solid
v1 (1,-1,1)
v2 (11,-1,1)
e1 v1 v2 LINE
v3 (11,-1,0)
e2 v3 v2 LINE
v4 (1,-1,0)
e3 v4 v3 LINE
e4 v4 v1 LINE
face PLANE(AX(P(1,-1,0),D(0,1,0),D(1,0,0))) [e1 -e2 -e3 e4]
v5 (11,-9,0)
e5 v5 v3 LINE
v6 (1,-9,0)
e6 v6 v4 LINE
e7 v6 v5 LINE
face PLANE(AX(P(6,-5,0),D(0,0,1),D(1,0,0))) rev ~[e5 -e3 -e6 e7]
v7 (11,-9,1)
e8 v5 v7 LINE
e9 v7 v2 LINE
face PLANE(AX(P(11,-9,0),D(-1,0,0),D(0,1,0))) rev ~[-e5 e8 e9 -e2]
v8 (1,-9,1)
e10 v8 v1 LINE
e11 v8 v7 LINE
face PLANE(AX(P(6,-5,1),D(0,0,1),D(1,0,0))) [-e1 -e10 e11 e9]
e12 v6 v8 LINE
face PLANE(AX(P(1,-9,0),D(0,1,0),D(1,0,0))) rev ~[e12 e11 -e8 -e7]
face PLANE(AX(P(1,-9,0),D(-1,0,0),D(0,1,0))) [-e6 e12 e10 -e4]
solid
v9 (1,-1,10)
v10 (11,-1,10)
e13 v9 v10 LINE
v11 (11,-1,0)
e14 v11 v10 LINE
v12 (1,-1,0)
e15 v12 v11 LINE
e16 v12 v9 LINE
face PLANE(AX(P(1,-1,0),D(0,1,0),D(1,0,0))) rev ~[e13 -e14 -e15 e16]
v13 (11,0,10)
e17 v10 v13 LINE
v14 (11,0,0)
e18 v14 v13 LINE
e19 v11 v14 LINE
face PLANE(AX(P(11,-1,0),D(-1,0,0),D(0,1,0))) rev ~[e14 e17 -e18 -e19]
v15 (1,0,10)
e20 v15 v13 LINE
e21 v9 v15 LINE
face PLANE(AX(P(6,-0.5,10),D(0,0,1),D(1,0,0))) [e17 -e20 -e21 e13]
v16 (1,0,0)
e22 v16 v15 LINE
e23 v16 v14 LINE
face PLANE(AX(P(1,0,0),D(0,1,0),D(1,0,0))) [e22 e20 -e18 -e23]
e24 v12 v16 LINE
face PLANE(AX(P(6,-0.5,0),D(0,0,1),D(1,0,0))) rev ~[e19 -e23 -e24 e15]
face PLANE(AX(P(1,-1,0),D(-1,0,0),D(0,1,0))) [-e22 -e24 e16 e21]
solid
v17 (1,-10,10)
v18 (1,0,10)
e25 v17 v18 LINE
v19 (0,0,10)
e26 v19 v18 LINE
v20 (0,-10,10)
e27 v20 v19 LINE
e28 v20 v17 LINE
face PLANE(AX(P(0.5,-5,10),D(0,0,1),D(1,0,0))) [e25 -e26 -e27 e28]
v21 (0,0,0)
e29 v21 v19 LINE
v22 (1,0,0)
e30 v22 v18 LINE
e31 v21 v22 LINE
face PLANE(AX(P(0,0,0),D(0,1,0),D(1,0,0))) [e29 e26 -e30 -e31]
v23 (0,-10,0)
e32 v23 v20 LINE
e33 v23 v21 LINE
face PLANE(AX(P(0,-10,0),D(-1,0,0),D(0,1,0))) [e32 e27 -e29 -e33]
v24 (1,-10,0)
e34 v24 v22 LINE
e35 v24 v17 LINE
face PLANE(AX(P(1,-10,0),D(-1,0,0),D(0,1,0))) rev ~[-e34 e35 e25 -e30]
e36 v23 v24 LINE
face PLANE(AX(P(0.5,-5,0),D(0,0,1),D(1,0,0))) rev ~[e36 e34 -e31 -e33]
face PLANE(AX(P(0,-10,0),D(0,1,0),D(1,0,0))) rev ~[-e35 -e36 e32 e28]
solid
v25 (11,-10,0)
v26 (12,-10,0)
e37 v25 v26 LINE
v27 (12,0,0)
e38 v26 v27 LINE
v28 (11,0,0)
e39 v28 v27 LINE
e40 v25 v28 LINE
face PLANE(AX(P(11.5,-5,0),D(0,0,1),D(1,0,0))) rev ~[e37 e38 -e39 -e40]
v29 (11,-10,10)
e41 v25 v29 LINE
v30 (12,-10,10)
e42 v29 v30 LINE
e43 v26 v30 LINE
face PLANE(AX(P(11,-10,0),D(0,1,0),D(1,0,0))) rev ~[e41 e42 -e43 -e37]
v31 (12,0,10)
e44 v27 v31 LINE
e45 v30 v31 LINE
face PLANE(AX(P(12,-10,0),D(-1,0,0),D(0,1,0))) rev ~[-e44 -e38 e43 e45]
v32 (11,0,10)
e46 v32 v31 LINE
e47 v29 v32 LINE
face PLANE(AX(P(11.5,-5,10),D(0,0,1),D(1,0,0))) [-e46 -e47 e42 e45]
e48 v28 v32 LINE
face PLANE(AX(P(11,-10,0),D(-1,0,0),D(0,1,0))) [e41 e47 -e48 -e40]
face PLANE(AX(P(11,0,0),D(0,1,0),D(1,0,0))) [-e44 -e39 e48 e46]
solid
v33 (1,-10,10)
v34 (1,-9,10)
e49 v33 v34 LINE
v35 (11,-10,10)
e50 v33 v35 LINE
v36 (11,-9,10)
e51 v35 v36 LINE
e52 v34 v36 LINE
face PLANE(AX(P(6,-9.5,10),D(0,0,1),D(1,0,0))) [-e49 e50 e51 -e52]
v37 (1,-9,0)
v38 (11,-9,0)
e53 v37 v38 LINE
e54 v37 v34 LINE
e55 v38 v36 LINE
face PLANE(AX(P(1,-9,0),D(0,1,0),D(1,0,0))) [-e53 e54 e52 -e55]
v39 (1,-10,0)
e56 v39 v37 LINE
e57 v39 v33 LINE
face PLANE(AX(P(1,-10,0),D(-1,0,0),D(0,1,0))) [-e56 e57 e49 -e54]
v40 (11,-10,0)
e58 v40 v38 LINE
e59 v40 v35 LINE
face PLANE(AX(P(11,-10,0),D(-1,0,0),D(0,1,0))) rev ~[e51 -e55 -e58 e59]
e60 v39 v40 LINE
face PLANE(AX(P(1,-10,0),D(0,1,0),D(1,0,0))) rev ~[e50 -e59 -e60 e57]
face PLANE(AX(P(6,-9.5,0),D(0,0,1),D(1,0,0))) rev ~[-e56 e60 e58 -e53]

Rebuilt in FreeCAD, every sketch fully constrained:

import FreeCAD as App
import Part
import Sketcher

V = App.Vector
Q = App.Units.Quantity


def add_polygon(sketch, points):
    """Adds a closed chain of lines whose ends are joined by coincident constraints."""
    first, n = sketch.GeometryCount, len(points)
    for a, b in zip(points, points[1:] + points[:1]):
        sketch.addGeometry(Part.LineSegment(App.Vector(*a, 0), App.Vector(*b, 0)), False)
    for i in range(n):
        sketch.addConstraint(Sketcher.Constraint("Coincident", first + i, 2, first + (i + 1) % n, 1))

doc = App.newDocument("Part")
body = doc.addObject("PartDesign::Body", "Body")

# Sketch on XY plane
sketch1 = body.newObject("Sketcher::SketchObject", "Sketch")
sketch1.AttachmentSupport = (doc.getObject("XY_Plane"), [""])
sketch1.MapMode = "FlatFace"
add_polygon(sketch1, [(0, 0), (0, -10), (1, -10), (1, 0)])  # lines 0-3
sketch1.addConstraint([
    Sketcher.Constraint("Vertical", 0),
    Sketcher.Constraint("Horizontal", 1),
    Sketcher.Constraint("Vertical", 2),
    Sketcher.Constraint("Horizontal", 3),
    Sketcher.Constraint("Coincident", 3, 2, -1, 1),
    Sketcher.Constraint("DistanceX", 1, 1, 1, 2, Q("1 mm")),
    Sketcher.Constraint("DistanceY", 0, 2, 0, 1, Q("10 mm")),
])
pad1 = body.newObject("PartDesign::Pad", "Pad")
pad1.Profile = sketch1
pad1.Length = 10
body2 = doc.addObject("PartDesign::Body", "Body001")

# Sketch on XY plane
sketch2 = body2.newObject("Sketcher::SketchObject", "Sketch001")
sketch2.AttachmentSupport = (doc.getObject("XY_Plane001"), [""])
sketch2.MapMode = "FlatFace"
add_polygon(sketch2, [(1, -9), (1, -10), (11, -10), (11, -9)])  # lines 0-3
sketch2.addConstraint([
    Sketcher.Constraint("Vertical", 0),
    Sketcher.Constraint("Horizontal", 1),
    Sketcher.Constraint("Vertical", 2),
    Sketcher.Constraint("Horizontal", 3),
    Sketcher.Constraint("DistanceX", 1, 1, 1, 2, Q("10 mm")),
    Sketcher.Constraint("DistanceY", 0, 2, 0, 1, Q("1 mm")),
    Sketcher.Constraint("DistanceX", -1, 1, 0, 2, Q("1 mm")),
    Sketcher.Constraint("DistanceY", 0, 2, -1, 1, Q("10 mm")),
])
pad2 = body2.newObject("PartDesign::Pad", "Pad001")
pad2.Profile = sketch2
pad2.Length = 10
body3 = doc.addObject("PartDesign::Body", "Body002")

# Sketch on XY plane
sketch3 = body3.newObject("Sketcher::SketchObject", "Sketch002")
sketch3.AttachmentSupport = (doc.getObject("XY_Plane002"), [""])
sketch3.MapMode = "FlatFace"
add_polygon(sketch3, [(1, 0), (1, -1), (11, -1), (11, 0)])  # lines 0-3
sketch3.addConstraint([
    Sketcher.Constraint("Vertical", 0),
    Sketcher.Constraint("Horizontal", 1),
    Sketcher.Constraint("Vertical", 2),
    Sketcher.Constraint("Horizontal", 3),
    Sketcher.Constraint("PointOnObject", 2, 2, -1),
    Sketcher.Constraint("DistanceX", 1, 1, 1, 2, Q("10 mm")),
    Sketcher.Constraint("DistanceY", 0, 2, 0, 1, Q("1 mm")),
    Sketcher.Constraint("DistanceX", -1, 1, 0, 2, Q("1 mm")),
])
pad3 = body3.newObject("PartDesign::Pad", "Pad002")
pad3.Profile = sketch3
pad3.Length = 10
body4 = doc.addObject("PartDesign::Body", "Body003")

# Sketch on XY plane
sketch4 = body4.newObject("Sketcher::SketchObject", "Sketch003")
sketch4.AttachmentSupport = (doc.getObject("XY_Plane003"), [""])
sketch4.MapMode = "FlatFace"
add_polygon(sketch4, [(11, 0), (11, -10), (12, -10), (12, 0)])  # lines 0-3
sketch4.addConstraint([
    Sketcher.Constraint("Vertical", 0),
    Sketcher.Constraint("Horizontal", 1),
    Sketcher.Constraint("Vertical", 2),
    Sketcher.Constraint("Horizontal", 3),
    Sketcher.Constraint("PointOnObject", 2, 2, -1),
    Sketcher.Constraint("DistanceX", 1, 1, 1, 2, Q("1 mm")),
    Sketcher.Constraint("DistanceY", 0, 2, 0, 1, Q("10 mm")),
    Sketcher.Constraint("DistanceX", -1, 1, 0, 2, Q("11 mm")),
])
pad4 = body4.newObject("PartDesign::Pad", "Pad003")
pad4.Profile = sketch4
pad4.Length = 10
body5 = doc.addObject("PartDesign::Body", "Body004")

# Sketch on XY plane
sketch5 = body5.newObject("Sketcher::SketchObject", "Sketch004")
sketch5.AttachmentSupport = (doc.getObject("XY_Plane004"), [""])
sketch5.MapMode = "FlatFace"
add_polygon(sketch5, [(1, -1), (1, -9), (11, -9), (11, -1)])  # lines 0-3
sketch5.addConstraint([
    Sketcher.Constraint("Vertical", 0),
    Sketcher.Constraint("Horizontal", 1),
    Sketcher.Constraint("Vertical", 2),
    Sketcher.Constraint("Horizontal", 3),
    Sketcher.Constraint("DistanceX", 1, 1, 1, 2, Q("10 mm")),
    Sketcher.Constraint("DistanceY", 0, 2, 0, 1, Q("8 mm")),
    Sketcher.Constraint("DistanceX", -1, 1, 0, 2, Q("1 mm")),
    Sketcher.Constraint("DistanceY", 0, 2, -1, 1, Q("9 mm")),
])
pad5 = body5.newObject("PartDesign::Pad", "Pad004")
pad5.Profile = sketch5
pad5.Length = 1

doc.recompute()
